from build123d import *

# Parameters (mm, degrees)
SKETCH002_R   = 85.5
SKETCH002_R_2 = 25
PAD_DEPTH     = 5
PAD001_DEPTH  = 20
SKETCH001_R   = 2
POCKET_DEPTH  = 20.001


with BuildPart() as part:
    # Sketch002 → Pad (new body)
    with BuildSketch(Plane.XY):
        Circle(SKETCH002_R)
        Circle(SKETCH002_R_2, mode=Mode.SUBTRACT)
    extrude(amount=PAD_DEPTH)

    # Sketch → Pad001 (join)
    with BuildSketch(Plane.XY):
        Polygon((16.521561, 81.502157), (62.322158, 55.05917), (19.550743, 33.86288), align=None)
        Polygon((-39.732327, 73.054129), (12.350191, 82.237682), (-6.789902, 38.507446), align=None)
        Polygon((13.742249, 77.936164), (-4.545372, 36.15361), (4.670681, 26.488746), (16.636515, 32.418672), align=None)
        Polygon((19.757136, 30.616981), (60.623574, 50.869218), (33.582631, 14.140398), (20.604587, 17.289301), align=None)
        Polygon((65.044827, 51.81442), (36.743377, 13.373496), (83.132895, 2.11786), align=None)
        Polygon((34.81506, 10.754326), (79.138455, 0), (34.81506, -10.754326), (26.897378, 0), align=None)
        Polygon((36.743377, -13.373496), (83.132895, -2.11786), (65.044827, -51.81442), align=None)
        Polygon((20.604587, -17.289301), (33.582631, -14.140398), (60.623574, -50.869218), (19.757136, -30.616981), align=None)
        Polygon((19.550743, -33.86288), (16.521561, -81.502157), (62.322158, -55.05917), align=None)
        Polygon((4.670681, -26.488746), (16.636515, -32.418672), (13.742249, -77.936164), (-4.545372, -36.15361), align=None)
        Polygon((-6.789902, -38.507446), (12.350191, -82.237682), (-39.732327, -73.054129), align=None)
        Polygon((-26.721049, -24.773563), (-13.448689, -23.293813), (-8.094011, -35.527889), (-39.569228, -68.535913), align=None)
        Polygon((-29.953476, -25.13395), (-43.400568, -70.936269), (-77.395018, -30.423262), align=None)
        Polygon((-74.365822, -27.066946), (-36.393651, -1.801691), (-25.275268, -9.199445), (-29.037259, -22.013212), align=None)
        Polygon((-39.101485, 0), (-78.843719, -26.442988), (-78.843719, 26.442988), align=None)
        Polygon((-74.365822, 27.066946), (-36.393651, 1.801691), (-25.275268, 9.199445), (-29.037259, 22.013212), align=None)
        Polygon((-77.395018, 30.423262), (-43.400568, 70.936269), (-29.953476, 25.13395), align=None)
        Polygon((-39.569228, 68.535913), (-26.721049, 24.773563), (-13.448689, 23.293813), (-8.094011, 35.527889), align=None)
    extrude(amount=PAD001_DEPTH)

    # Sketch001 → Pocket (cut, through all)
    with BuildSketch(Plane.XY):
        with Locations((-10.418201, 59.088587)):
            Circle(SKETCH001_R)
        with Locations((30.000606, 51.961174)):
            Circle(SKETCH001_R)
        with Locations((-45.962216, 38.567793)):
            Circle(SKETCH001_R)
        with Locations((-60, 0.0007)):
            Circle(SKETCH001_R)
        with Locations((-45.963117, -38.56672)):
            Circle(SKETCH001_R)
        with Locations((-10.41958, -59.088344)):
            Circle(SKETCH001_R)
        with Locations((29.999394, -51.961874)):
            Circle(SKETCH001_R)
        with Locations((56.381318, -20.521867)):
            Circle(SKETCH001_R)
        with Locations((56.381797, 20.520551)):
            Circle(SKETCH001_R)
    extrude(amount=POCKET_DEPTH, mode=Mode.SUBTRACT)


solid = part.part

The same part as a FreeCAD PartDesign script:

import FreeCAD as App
import Part
import Sketcher
from FreeCAD import Vector


def add_polygon(sketch, points):
    """Adds a closed chain of lines whose ends are joined by coincident constraints."""
    first, n = sketch.GeometryCount, len(points)
    for a, b in zip(points, points[1:] + points[:1]):
        sketch.addGeometry(Part.LineSegment(App.Vector(*a, 0), App.Vector(*b, 0)), False)
    for i in range(n):
        sketch.addConstraint(Sketcher.Constraint("Coincident", first + i, 2, first + (i + 1) % n, 1))

doc = App.newDocument("Part")
body = doc.addObject("PartDesign::Body", "Body")

# Sketch on XY plane
sketch1 = doc.addObject("Sketcher::SketchObject", "Sketch")
body.addObject(sketch1)
sketch1.AttachmentSupport = (doc.XY_Plane, [""])
sketch1.MapMode = "FlatFace"
sketch1.addGeometry(Part.Circle(Vector(0, 0, 0), Vector(0, 0, 1), 85.5), False)
sketch1.addGeometry(Part.Circle(Vector(0, 0, 0), Vector(0, 0, 1), 25), False)
sketch1.addConstraint(Sketcher.Constraint("Coincident", 0, 3, -1, 1))
sketch1.addConstraint(Sketcher.Constraint("Coincident", 1, 3, -1, 1))
sketch1.addConstraint(Sketcher.Constraint("Diameter", 0, 171.0))
sketch1.addConstraint(Sketcher.Constraint("Diameter", 1, 50.0))
pad1 = doc.addObject("PartDesign::Pad", "Pad")
body.addObject(pad1)
pad1.Profile = sketch1
pad1.Length = 5

# Sketch on XY plane
sketch2 = doc.addObject("Sketcher::SketchObject", "Sketch001")
body.addObject(sketch2)
sketch2.AttachmentSupport = (doc.XY_Plane, [""])
sketch2.MapMode = "FlatFace"
add_polygon(sketch2, [(62.322158, 55.05917), (16.521561, 81.502157), (19.550743, 33.86288)])  # lines 0-2
add_polygon(sketch2, [(12.350191, 82.237682), (-39.732327, 73.054129), (-6.789902, 38.507446)])  # lines 3-5
add_polygon(sketch2, [(13.742249, 77.936164), (-4.545372, 36.15361), (4.670681, 26.488746), (16.636515, 32.418672)])  # lines 6-9
add_polygon(sketch2, [(60.623574, 50.869218), (19.757136, 30.616981), (20.604587, 17.289301), (33.582631, 14.140398)])  # lines 10-13
add_polygon(sketch2, [(65.044827, 51.81442), (36.743377, 13.373496), (83.132895, 2.11786)])  # lines 14-16
add_polygon(sketch2, [(79.138455, 0), (34.81506, 10.754326), (26.897378, 0), (34.81506, -10.754326)])  # lines 17-20
add_polygon(sketch2, [(83.132895, -2.11786), (36.743377, -13.373496), (65.044827, -51.81442)])  # lines 21-23
add_polygon(sketch2, [(33.582631, -14.140398), (20.604587, -17.289301), (19.757136, -30.616981), (60.623574, -50.869218)])  # lines 24-27
add_polygon(sketch2, [(19.550743, -33.86288), (16.521561, -81.502157), (62.322158, -55.05917)])  # lines 28-30
add_polygon(sketch2, [(16.636515, -32.418672), (4.670681, -26.488746), (-4.545372, -36.15361), (13.742249, -77.936164)])  # lines 31-34
add_polygon(sketch2, [(12.350191, -82.237682), (-6.789902, -38.507446), (-39.732327, -73.054129)])  # lines 35-37
add_polygon(sketch2, [(-13.448689, -23.293813), (-26.721049, -24.773563), (-39.569228, -68.535913), (-8.094011, -35.527889)])  # lines 38-41
add_polygon(sketch2, [(-43.400568, -70.936269), (-29.953476, -25.13395), (-77.395018, -30.423262)])  # lines 42-44
add_polygon(sketch2, [(-36.393651, -1.801691), (-74.365822, -27.066946), (-29.037259, -22.013212), (-25.275268, -9.199445)])  # lines 45-48
add_polygon(sketch2, [(-78.843719, -26.442988), (-39.101485, 0), (-78.843719, 26.442988)])  # lines 49-51
add_polygon(sketch2, [(-74.365822, 27.066946), (-36.393651, 1.801691), (-25.275268, 9.199445), (-29.037259, 22.013212)])  # lines 52-55
add_polygon(sketch2, [(-43.400568, 70.936269), (-77.395018, 30.423262), (-29.953476, 25.13395)])  # lines 56-58
add_polygon(sketch2, [(-39.569228, 68.535913), (-26.721049, 24.773563), (-13.448689, 23.293813), (-8.094011, 35.527889)])  # lines 59-62
sketch2.addConstraint(Sketcher.Constraint("Vertical", 51))
sketch2.addConstraint(Sketcher.Constraint("Symmetric", 17, 2, 19, 2, -1))
sketch2.addConstraint(Sketcher.Constraint("Symmetric", 14, 2, 21, 2, -1))
sketch2.addConstraint(Sketcher.Constraint("Symmetric", 16, 2, 22, 2, -1))
sketch2.addConstraint(Sketcher.Constraint("Symmetric", 15, 2, 23, 2, -1))
sketch2.addConstraint(Sketcher.Constraint("Symmetric", 11, 2, 24, 2, -1))
sketch2.addConstraint(Sketcher.Constraint("Symmetric", 10, 2, 25, 2, -1))
sketch2.addConstraint(Sketcher.Constraint("Symmetric", 13, 2, 26, 2, -1))
sketch2.addConstraint(Sketcher.Constraint("Symmetric", 12, 2, 27, 2, -1))
sketch2.addConstraint(Sketcher.Constraint("Symmetric", 0, 2, 28, 2, -1))
sketch2.addConstraint(Sketcher.Constraint("Symmetric", 2, 2, 29, 2, -1))
sketch2.addConstraint(Sketcher.Constraint("Symmetric", 1, 2, 30, 2, -1))
sketch2.addConstraint(Sketcher.Constraint("Symmetric", 7, 2, 31, 2, -1))
sketch2.addConstraint(Sketcher.Constraint("Symmetric", 6, 2, 32, 2, -1))
sketch2.addConstraint(Sketcher.Constraint("Symmetric", 9, 2, 33, 2, -1))
sketch2.addConstraint(Sketcher.Constraint("Symmetric", 8, 2, 34, 2, -1))
sketch2.addConstraint(Sketcher.Constraint("Symmetric", 4, 2, 35, 2, -1))
sketch2.addConstraint(Sketcher.Constraint("Symmetric", 3, 2, 36, 2, -1))
sketch2.addConstraint(Sketcher.Constraint("Symmetric", 5, 2, 37, 2, -1))
sketch2.addConstraint(Sketcher.Constraint("Symmetric", 48, 2, 52, 2, -1))
sketch2.addConstraint(Sketcher.Constraint("Symmetric", 47, 2, 53, 2, -1))
sketch2.addConstraint(Sketcher.Constraint("Symmetric", 46, 2, 54, 2, -1))
sketch2.addConstraint(Sketcher.Constraint("Symmetric", 45, 2, 55, 2, -1))
sketch2.addConstraint(Sketcher.Constraint("Symmetric", 43, 2, 56, 2, -1))
sketch2.addConstraint(Sketcher.Constraint("Symmetric", 42, 2, 57, 2, -1))
sketch2.addConstraint(Sketcher.Constraint("Symmetric", 44, 2, 58, 2, -1))
sketch2.addConstraint(Sketcher.Constraint("Symmetric", 38, 2, 59, 2, -1))
sketch2.addConstraint(Sketcher.Constraint("Symmetric", 41, 2, 60, 2, -1))
sketch2.addConstraint(Sketcher.Constraint("Symmetric", 40, 2, 61, 2, -1))
sketch2.addConstraint(Sketcher.Constraint("Symmetric", 39, 2, 62, 2, -1))
sketch2.addConstraint(Sketcher.Constraint("PointOnObject", 18, 2, -1))
sketch2.addConstraint(Sketcher.Constraint("PointOnObject", 20, 2, -1))
sketch2.addConstraint(Sketcher.Constraint("PointOnObject", 49, 2, -1))
sketch2.addConstraint(Sketcher.Constraint("Parallel", 5, 6))
sketch2.addConstraint(Sketcher.Constraint("Parallel", 4, 7))
sketch2.addConstraint(Sketcher.Constraint("Parallel", 2, 8))
sketch2.addConstraint(Sketcher.Constraint("Parallel", 1, 9))
sketch2.addConstraint(Sketcher.Constraint("Parallel", 8, 10))
sketch2.addConstraint(Sketcher.Constraint("Parallel", 9, 11))
sketch2.addConstraint(Sketcher.Constraint("Parallel", 13, 14))
sketch2.addConstraint(Sketcher.Constraint("Parallel", 12, 15))
sketch2.addConstraint(Sketcher.Constraint("Parallel", 15, 17))
sketch2.addConstraint(Sketcher.Constraint("Parallel", 14, 18))
sketch2.addConstraint(Sketcher.Constraint("Parallel", 36, 40))
sketch2.addConstraint(Sketcher.Constraint("Parallel", 35, 41))
sketch2.addConstraint(Sketcher.Constraint("Parallel", 39, 42))
sketch2.addConstraint(Sketcher.Constraint("Parallel", 38, 43))
sketch2.addConstraint(Sketcher.Constraint("Parallel", 43, 46))
sketch2.addConstraint(Sketcher.Constraint("Parallel", 42, 47))
sketch2.addConstraint(Sketcher.Constraint("Parallel", 45, 49))
sketch2.addConstraint(Sketcher.Constraint("Parallel", 48, 50))
sketch2.addConstraint(Sketcher.Constraint("Parallel", 50, 52))
sketch2.addConstraint(Sketcher.Constraint("Equal", 1, 2))
sketch2.addConstraint(Sketcher.Constraint("Equal", 0, 3))
sketch2.addConstraint(Sketcher.Constraint("Equal", 2, 4))
sketch2.addConstraint(Sketcher.Constraint("Equal", 4, 5))
sketch2.addConstraint(Sketcher.Constraint("Equal", 7, 8))
sketch2.addConstraint(Sketcher.Constraint("Equal", 9, 10))
sketch2.addConstraint(Sketcher.Constraint("Equal", 8, 11))
sketch2.addConstraint(Sketcher.Constraint("Equal", 11, 12))
sketch2.addConstraint(Sketcher.Constraint("Equal", 10, 13))
sketch2.addConstraint(Sketcher.Constraint("Equal", 5, 14))
sketch2.addConstraint(Sketcher.Constraint("Equal", 14, 15))
sketch2.addConstraint(Sketcher.Constraint("Equal", 13, 17))
sketch2.addConstraint(Sketcher.Constraint("Equal", 12, 18))
sketch2.addConstraint(Sketcher.Constraint("Equal", 32, 38))
sketch2.addConstraint(Sketcher.Constraint("Equal", 34, 39))
sketch2.addConstraint(Sketcher.Constraint("Equal", 39, 40))
sketch2.addConstraint(Sketcher.Constraint("Equal", 38, 41))
sketch2.addConstraint(Sketcher.Constraint("Equal", 36, 42))
sketch2.addConstraint(Sketcher.Constraint("Equal", 42, 43))
sketch2.addConstraint(Sketcher.Constraint("Equal", 40, 45))
sketch2.addConstraint(Sketcher.Constraint("Equal", 45, 46))
sketch2.addConstraint(Sketcher.Constraint("Equal", 41, 47))
sketch2.addConstraint(Sketcher.Constraint("Equal", 47, 48))
sketch2.addConstraint(Sketcher.Constraint("Equal", 43, 49))
sketch2.addConstraint(Sketcher.Constraint("DistanceX", 4, 2, -1, 1, 6.789902))
sketch2.addConstraint(Sketcher.Constraint("DistanceY", -1, 1, 11, 2, 17.289301))
sketch2.addConstraint(Sketcher.Constraint("DistanceY", 51, 2, 51, 1, 52.885976))
sketch2.addConstraint(Sketcher.Constraint("DistanceX", -1, 1, 0, 2, 16.521561))
sketch2.addConstraint(Sketcher.Constraint("DistanceY", -1, 1, 1, 2, 33.86288))
sketch2.addConstraint(Sketcher.Constraint("DistanceY", -1, 1, 2, 2, 55.05917))
sketch2.addConstraint(Sketcher.Constraint("DistanceY", -1, 1, 3, 2, 73.054129))
sketch2.addConstraint(Sketcher.Constraint("DistanceY", -1, 1, 6, 2, 36.15361))
sketch2.addConstraint(Sketcher.Constraint("DistanceX", -1, 1, 7, 2, 4.670681))
sketch2.addConstraint(Sketcher.Constraint("DistanceX", -1, 1, 9, 2, 13.742249))
sketch2.addConstraint(Sketcher.Constraint("DistanceX", -1, 1, 12, 2, 33.582631))
sketch2.addConstraint(Sketcher.Constraint("DistanceY", -1, 1, 15, 2, 2.11786))
sketch2.addConstraint(Sketcher.Constraint("DistanceX", -1, 1, 17, 2, 34.81506))
sketch2.addConstraint(Sketcher.Constraint("DistanceX", 38, 2, -1, 1, 26.721049))
sketch2.addConstraint(Sketcher.Constraint("DistanceY", 40, 2, -1, 1, 35.527889))
sketch2.addConstraint(Sketcher.Constraint("DistanceY", 42, 2, -1, 1, 25.13395))
sketch2.addConstraint(Sketcher.Constraint("DistanceX", 45, 2, -1, 1, 74.365822))
sketch2.addConstraint(Sketcher.Constraint("DistanceY", 46, 2, -1, 1, 22.013212))
sketch2.addConstraint(Sketcher.Constraint("DistanceX", 50, 2, -1, 1, 78.843719))
sketch2.addConstraint(Sketcher.Constraint("DistanceX", -1, 1, 14, 2, 36.743377))
sketch2.addConstraint(Sketcher.Constraint("DistanceX", 42, 2, -1, 1, 29.953476))
pad2 = doc.addObject("PartDesign::Pad", "Pad001")
body.addObject(pad2)
pad2.Profile = sketch2
pad2.Length = 20

# Sketch on XY plane
sketch3 = doc.addObject("Sketcher::SketchObject", "Sketch002")
body.addObject(sketch3)
sketch3.AttachmentSupport = (doc.XY_Plane, [""])
sketch3.MapMode = "FlatFace"
sketch3.addGeometry(Part.Circle(Vector(-10.418201, 59.088587, 0), Vector(0, 0, 1), 2), False)
sketch3.addGeometry(Part.Circle(Vector(30.000606, 51.961174, 0), Vector(0, 0, 1), 2), False)
sketch3.addGeometry(Part.Circle(Vector(-45.962216, 38.567793, 0), Vector(0, 0, 1), 2), False)
sketch3.addGeometry(Part.Circle(Vector(-60, 0.0007, 0), Vector(0, 0, 1), 2), False)
sketch3.addGeometry(Part.Circle(Vector(-45.963117, -38.56672, 0), Vector(0, 0, 1), 2), False)
sketch3.addGeometry(Part.Circle(Vector(-10.41958, -59.088344, 0), Vector(0, 0, 1), 2), False)
sketch3.addGeometry(Part.Circle(Vector(29.999394, -51.961874, 0), Vector(0, 0, 1), 2), False)
sketch3.addGeometry(Part.Circle(Vector(56.381318, -20.521867, 0), Vector(0, 0, 1), 2), False)
sketch3.addGeometry(Part.Circle(Vector(56.381797, 20.520551, 0), Vector(0, 0, 1), 2), False)
sketch3.addConstraint(Sketcher.Constraint("Equal", 0, 1))
sketch3.addConstraint(Sketcher.Constraint("Equal", 1, 2))
sketch3.addConstraint(Sketcher.Constraint("Equal", 2, 3))
sketch3.addConstraint(Sketcher.Constraint("Equal", 3, 4))
sketch3.addConstraint(Sketcher.Constraint("Equal", 4, 5))
sketch3.addConstraint(Sketcher.Constraint("Equal", 5, 6))
sketch3.addConstraint(Sketcher.Constraint("Equal", 6, 7))
sketch3.addConstraint(Sketcher.Constraint("Equal", 7, 8))
sketch3.addConstraint(Sketcher.Constraint("Diameter", 0, 4.0))
sketch3.addConstraint(Sketcher.Constraint("DistanceX", 3, 3, -1, 1, 60.0))
sketch3.addConstraint(Sketcher.Constraint("DistanceX", 0, 3, 8, 3, 66.799998))
sketch3.addConstraint(Sketcher.Constraint("DistanceX", 0, 3, -1, 1, 10.418201))
sketch3.addConstraint(Sketcher.Constraint("DistanceY", -1, 1, 3, 3, 0.0007))
sketch3.addConstraint(Sketcher.Constraint("DistanceX", 4, 3, 2, 3, 0.000901))
sketch3.addConstraint(Sketcher.Constraint("DistanceX", 5, 3, 7, 3, 66.800898))
sketch3.addConstraint(Sketcher.Constraint("DistanceY", 4, 3, -1, 1, 38.56672))
sketch3.addConstraint(Sketcher.Constraint("DistanceX", 5, 3, -1, 1, 10.41958))
sketch3.addConstraint(Sketcher.Constraint("DistanceY", -1, 1, 8, 3, 20.520551))
sketch3.addConstraint(Sketcher.Constraint("DistanceY", 2, 3, 1, 3, 13.393381))
sketch3.addConstraint(Sketcher.Constraint("DistanceY", 5, 3, 1, 3, 111.049518))
sketch3.addConstraint(Sketcher.Constraint("DistanceY", 5, 3, 0, 3, 118.176931))
sketch3.addConstraint(Sketcher.Constraint("DistanceY", 5, 3, 6, 3, 7.12647))
sketch3.addConstraint(Sketcher.Constraint("DistanceX", 4, 3, 6, 3, 75.962511))
sketch3.addConstraint(Sketcher.Constraint("DistanceX", 1, 3, 7, 3, 26.380712))
sketch3.addConstraint(Sketcher.Constraint("DistanceY", 7, 3, 1, 3, 72.483041))
sketch3.addConstraint(Sketcher.Constraint("DistanceY", -1, 1, 0, 3, 59.088587))
sketch3.addConstraint(Sketcher.Constraint("DistanceX", 2, 3, -1, 1, 45.962216))
pocket1 = doc.addObject("PartDesign::Pocket", "Pocket")
body.addObject(pocket1)
pocket1.Profile = sketch3
pocket1.Type = "ThroughAll"
pocket1.Reversed = True

doc.recompute()
